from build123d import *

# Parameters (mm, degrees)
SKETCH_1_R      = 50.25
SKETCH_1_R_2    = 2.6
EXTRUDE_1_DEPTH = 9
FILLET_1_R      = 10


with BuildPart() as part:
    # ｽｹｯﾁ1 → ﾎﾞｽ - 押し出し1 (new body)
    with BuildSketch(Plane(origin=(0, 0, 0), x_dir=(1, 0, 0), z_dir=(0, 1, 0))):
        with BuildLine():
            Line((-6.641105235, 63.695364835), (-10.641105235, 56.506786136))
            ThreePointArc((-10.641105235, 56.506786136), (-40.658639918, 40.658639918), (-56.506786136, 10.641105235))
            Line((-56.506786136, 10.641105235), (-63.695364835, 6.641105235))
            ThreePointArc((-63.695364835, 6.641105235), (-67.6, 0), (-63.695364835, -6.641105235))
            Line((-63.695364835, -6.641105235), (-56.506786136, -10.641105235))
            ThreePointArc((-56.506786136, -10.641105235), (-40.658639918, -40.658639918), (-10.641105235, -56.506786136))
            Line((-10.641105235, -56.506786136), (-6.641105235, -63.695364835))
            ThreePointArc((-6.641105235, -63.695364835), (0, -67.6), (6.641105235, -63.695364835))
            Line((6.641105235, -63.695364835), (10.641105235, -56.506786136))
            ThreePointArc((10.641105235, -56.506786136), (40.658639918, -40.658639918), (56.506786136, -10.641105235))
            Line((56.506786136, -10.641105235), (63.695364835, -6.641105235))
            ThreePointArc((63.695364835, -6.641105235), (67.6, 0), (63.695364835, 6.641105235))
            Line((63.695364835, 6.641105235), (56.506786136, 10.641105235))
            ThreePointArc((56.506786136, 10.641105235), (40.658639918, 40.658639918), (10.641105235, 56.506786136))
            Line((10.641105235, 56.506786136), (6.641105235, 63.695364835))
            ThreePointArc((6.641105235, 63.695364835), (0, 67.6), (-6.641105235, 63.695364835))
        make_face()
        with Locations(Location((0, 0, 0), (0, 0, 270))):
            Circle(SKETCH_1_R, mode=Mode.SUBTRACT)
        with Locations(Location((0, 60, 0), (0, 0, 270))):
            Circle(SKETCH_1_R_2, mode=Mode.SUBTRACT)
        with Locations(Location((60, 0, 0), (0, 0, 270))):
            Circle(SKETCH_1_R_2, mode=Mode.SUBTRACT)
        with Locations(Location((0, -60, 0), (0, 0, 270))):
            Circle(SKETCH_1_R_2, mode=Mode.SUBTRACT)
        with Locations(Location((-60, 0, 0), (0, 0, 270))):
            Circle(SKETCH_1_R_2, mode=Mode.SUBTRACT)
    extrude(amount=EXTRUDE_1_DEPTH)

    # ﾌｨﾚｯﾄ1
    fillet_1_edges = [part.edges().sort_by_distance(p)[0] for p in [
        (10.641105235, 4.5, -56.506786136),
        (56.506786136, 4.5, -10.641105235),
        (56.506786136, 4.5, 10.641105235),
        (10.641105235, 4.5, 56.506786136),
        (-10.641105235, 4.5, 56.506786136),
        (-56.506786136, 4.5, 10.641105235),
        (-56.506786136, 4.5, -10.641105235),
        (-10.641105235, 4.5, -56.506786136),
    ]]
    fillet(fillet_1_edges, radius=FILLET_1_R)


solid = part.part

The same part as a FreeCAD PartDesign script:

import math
import FreeCAD as App
import Part
import Sketcher


def edges_at(feature, points):
    """Names of the edges that pass closest to the given points."""
    edges = feature.Shape.Edges
    near = lambda p: min(range(len(edges)), key=lambda i: edges[i].distToShape(Part.Vertex(*p))[0])
    return sorted({f"Edge{near(p) + 1}" for p in points})

doc = App.newDocument("Part")
body = doc.addObject("PartDesign::Body", "Body")

sketch1 = body.newObject("Sketcher::SketchObject", "Sketch")
sketch1.AttachmentSupport = (doc.getObject("XZ_Plane"), [""])
sketch1.MapMode = "FlatFace"
sketch1.addGeometry(Part.LineSegment(App.Vector(-6.6, -63.7, 0), App.Vector(-10.6, -56.5, 0)), False)
sketch1.addGeometry(Part.ArcOfCircle(Part.Circle(App.Vector(0, 0, 0), App.Vector(0, 0, 1), 57.5), math.radians(-169), math.radians(-101)), False)
sketch1.addGeometry(Part.LineSegment(App.Vector(-56.5, -10.6, 0), App.Vector(-63.7, -6.6, 0)), False)
sketch1.addGeometry(Part.ArcOfCircle(Part.Circle(App.Vector(-60, 0, 0), App.Vector(0, 0, 1), 7.6), math.radians(119), math.radians(241)), False)
sketch1.addGeometry(Part.LineSegment(App.Vector(-63.7, 6.6, 0), App.Vector(-56.5, 10.6, 0)), False)
sketch1.addGeometry(Part.ArcOfCircle(Part.Circle(App.Vector(0, 0, 0), App.Vector(0, 0, 1), 57.5), math.radians(101), math.radians(169)), False)
sketch1.addGeometry(Part.LineSegment(App.Vector(-10.6, 56.5, 0), App.Vector(-6.6, 63.7, 0)), False)
sketch1.addGeometry(Part.ArcOfCircle(Part.Circle(App.Vector(0, 60, 0), App.Vector(0, 0, 1), 7.6), math.radians(29), math.radians(151)), False)
sketch1.addGeometry(Part.LineSegment(App.Vector(6.6, 63.7, 0), App.Vector(10.6, 56.5, 0)), False)
sketch1.addGeometry(Part.ArcOfCircle(Part.Circle(App.Vector(0, 0, 0), App.Vector(0, 0, 1), 57.5), math.radians(11), math.radians(79)), False)
sketch1.addGeometry(Part.LineSegment(App.Vector(56.5, 10.6, 0), App.Vector(63.7, 6.6, 0)), False)
sketch1.addGeometry(Part.ArcOfCircle(Part.Circle(App.Vector(60, 0, 0), App.Vector(0, 0, 1), 7.6), math.radians(-61), math.radians(61)), False)
sketch1.addGeometry(Part.LineSegment(App.Vector(63.7, -6.6, 0), App.Vector(56.5, -10.6, 0)), False)
sketch1.addGeometry(Part.ArcOfCircle(Part.Circle(App.Vector(0, 0, 0), App.Vector(0, 0, 1), 57.5), math.radians(-79), math.radians(-11)), False)
sketch1.addGeometry(Part.LineSegment(App.Vector(10.6, -56.5, 0), App.Vector(6.6, -63.7, 0)), False)
sketch1.addGeometry(Part.ArcOfCircle(Part.Circle(App.Vector(0, -60, 0), App.Vector(0, 0, 1), 7.6), math.radians(-151), math.radians(-29)), False)
sketch1.addGeometry(Part.Circle(App.Vector(0, 60, 0), App.Vector(0, 0, 1), 2.6), False)
sketch1.addGeometry(Part.Circle(App.Vector(-60, 0, 0), App.Vector(0, 0, 1), 2.6), False)
sketch1.addGeometry(Part.Circle(App.Vector(0, 0, 0), App.Vector(0, 0, 1), 50.2), False)
sketch1.addGeometry(Part.Circle(App.Vector(60, 0, 0), App.Vector(0, 0, 1), 2.6), False)
sketch1.addGeometry(Part.Circle(App.Vector(0, -60, 0), App.Vector(0, 0, 1), 2.6), False)
sketch1.addConstraint(Sketcher.Constraint("Coincident", 0, 2, 1, 2))
sketch1.addConstraint(Sketcher.Constraint("Coincident", 1, 1, 2, 1))
sketch1.addConstraint(Sketcher.Constraint("Tangent", 2, 2, 3, 2))
sketch1.addConstraint(Sketcher.Constraint("Tangent", 3, 1, 4, 1))
sketch1.addConstraint(Sketcher.Constraint("Coincident", 4, 2, 5, 2))
sketch1.addConstraint(Sketcher.Constraint("Coincident", 5, 1, 6, 1))
sketch1.addConstraint(Sketcher.Constraint("Tangent", 6, 2, 7, 2))
sketch1.addConstraint(Sketcher.Constraint("Tangent", 7, 1, 8, 1))
sketch1.addConstraint(Sketcher.Constraint("Coincident", 8, 2, 9, 2))
sketch1.addConstraint(Sketcher.Constraint("Coincident", 9, 1, 10, 1))
sketch1.addConstraint(Sketcher.Constraint("Tangent", 10, 2, 11, 2))
sketch1.addConstraint(Sketcher.Constraint("Tangent", 11, 1, 12, 1))
sketch1.addConstraint(Sketcher.Constraint("Coincident", 12, 2, 13, 2))
sketch1.addConstraint(Sketcher.Constraint("Coincident", 13, 1, 14, 1))
sketch1.addConstraint(Sketcher.Constraint("Tangent", 14, 2, 15, 2))
sketch1.addConstraint(Sketcher.Constraint("Tangent", 15, 1, 0, 1))
sketch1.addConstraint(Sketcher.Constraint("Coincident", 1, 3, -1, 1))
sketch1.addConstraint(Sketcher.Constraint("Coincident", 5, 3, -1, 1))
sketch1.addConstraint(Sketcher.Constraint("Coincident", 9, 3, -1, 1))
sketch1.addConstraint(Sketcher.Constraint("Coincident", 13, 3, -1, 1))
sketch1.addConstraint(Sketcher.Constraint("Coincident", 18, 3, -1, 1))
sketch1.addConstraint(Sketcher.Constraint("Coincident", 16, 3, 7, 3))
sketch1.addConstraint(Sketcher.Constraint("Coincident", 17, 3, 3, 3))
sketch1.addConstraint(Sketcher.Constraint("Coincident", 19, 3, 11, 3))
sketch1.addConstraint(Sketcher.Constraint("Coincident", 20, 3, 15, 3))
sketch1.addConstraint(Sketcher.Constraint("Equal", 1, 5))
sketch1.addConstraint(Sketcher.Constraint("Equal", 3, 7))
sketch1.addConstraint(Sketcher.Constraint("Equal", 5, 9))
sketch1.addConstraint(Sketcher.Constraint("Equal", 7, 11))
sketch1.addConstraint(Sketcher.Constraint("Equal", 9, 13))
sketch1.addConstraint(Sketcher.Constraint("Equal", 11, 15))
sketch1.addConstraint(Sketcher.Constraint("Equal", 16, 17))
sketch1.addConstraint(Sketcher.Constraint("Equal", 17, 19))
sketch1.addConstraint(Sketcher.Constraint("Equal", 19, 20))
sketch1.addConstraint(Sketcher.Constraint("Symmetric", 3, 3, 11, 3, -1, 1))
sketch1.addConstraint(Sketcher.Constraint("Symmetric", 7, 3, 15, 3, -1, 1))
sketch1.addConstraint(Sketcher.Constraint("Symmetric", 6, 2, 7, 1, -2))
sketch1.addConstraint(Sketcher.Constraint("Symmetric", 3, 1, 10, 2, -2))
sketch1.addConstraint(Sketcher.Constraint("Perpendicular", 0, 4))
sketch1.addConstraint(Sketcher.Constraint("Perpendicular", 2, 6))
sketch1.addConstraint(Sketcher.Constraint("Perpendicular", 4, 8))
sketch1.addConstraint(Sketcher.Constraint("Perpendicular", 8, 12))
sketch1.addConstraint(Sketcher.Constraint("Perpendicular", 10, 14))
sketch1.addConstraint(Sketcher.Constraint("Equal", 0, 2))
sketch1.addConstraint(Sketcher.Constraint("Diameter", 16, 5.2))
sketch1.addConstraint(Sketcher.Constraint("Diameter", 18, 100.5))
sketch1.addConstraint(Sketcher.Constraint("Radius", 1, 57.5))
sketch1.addConstraint(Sketcher.Constraint("Radius", 3, 7.6))
sketch1.addConstraint(Sketcher.Constraint("DistanceX", 3, 3, -1, 1, 60.0))
sketch1.addConstraint(Sketcher.Constraint("DistanceY", 1, 1, 2, 2, 4.0))
pad1 = body.newObject("PartDesign::Pad", "Pad")
pad1.Profile = sketch1
pad1.Length = 9
pad1.Reversed = True
doc.recompute()

fillet = body.newObject("PartDesign::Fillet", "Fillet")
fillet.Base = (pad1, edges_at(pad1, [
    (10.641, 4.5, -56.507),
    (56.507, 4.5, -10.641),
    (56.507, 4.5, 10.641),
    (10.641, 4.5, 56.507),
    (-10.641, 4.5, 56.507),
    (-56.507, 4.5, 10.641),
    (-56.507, 4.5, -10.641),
    (-10.641, 4.5, -56.507),
]))
fillet.Radius = 10

doc.recompute()
